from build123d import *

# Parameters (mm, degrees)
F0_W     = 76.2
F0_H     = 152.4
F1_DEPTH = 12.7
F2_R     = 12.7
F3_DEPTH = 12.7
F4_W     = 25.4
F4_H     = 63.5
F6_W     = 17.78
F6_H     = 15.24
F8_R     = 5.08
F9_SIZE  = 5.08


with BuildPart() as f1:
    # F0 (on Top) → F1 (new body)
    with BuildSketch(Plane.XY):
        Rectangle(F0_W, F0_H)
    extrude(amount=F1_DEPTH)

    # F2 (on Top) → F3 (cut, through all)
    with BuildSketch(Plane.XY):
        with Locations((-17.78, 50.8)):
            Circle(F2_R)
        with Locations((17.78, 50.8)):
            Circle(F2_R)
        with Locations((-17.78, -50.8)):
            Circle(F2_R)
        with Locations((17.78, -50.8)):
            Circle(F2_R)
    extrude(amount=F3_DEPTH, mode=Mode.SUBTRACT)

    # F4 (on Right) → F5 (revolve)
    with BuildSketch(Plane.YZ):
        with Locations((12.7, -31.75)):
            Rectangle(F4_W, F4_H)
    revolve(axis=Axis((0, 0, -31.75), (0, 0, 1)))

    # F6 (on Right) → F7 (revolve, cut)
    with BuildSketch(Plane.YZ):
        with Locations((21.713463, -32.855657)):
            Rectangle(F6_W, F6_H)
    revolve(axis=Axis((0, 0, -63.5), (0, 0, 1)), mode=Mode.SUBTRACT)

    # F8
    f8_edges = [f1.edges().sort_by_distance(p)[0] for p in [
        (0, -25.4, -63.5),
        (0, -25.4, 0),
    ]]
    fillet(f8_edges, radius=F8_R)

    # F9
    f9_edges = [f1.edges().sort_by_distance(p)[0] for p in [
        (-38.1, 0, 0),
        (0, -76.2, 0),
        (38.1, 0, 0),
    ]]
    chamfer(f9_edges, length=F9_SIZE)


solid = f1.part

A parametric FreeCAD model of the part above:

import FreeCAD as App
import Part
import Sketcher
Q = App.Units.Quantity


def edges_at(feature, points):
    """Names of the edges that pass closest to the given points."""
    edges = feature.Shape.Edges
    near = lambda p: min(range(len(edges)), key=lambda i: edges[i].distToShape(Part.Vertex(*p))[0])
    return sorted({f"Edge{near(p) + 1}" for p in points})

doc = App.newDocument("Part")
body = doc.addObject("PartDesign::Body", "Body")

sketch1 = body.newObject("Sketcher::SketchObject", "Sketch")
sketch1.AttachmentSupport = (doc.getObject("XY_Plane"), [""])
sketch1.MapMode = "FlatFace"
sketch1.addGeometry([
    Part.LineSegment(App.Vector(-38, 76, 0), App.Vector(-38, -76, 0)),
    Part.LineSegment(App.Vector(-38, -76, 0), App.Vector(38, -76, 0)),
    Part.LineSegment(App.Vector(38, -76, 0), App.Vector(38, 76, 0)),
    Part.LineSegment(App.Vector(38, 76, 0), App.Vector(-38, 76, 0)),
], False)
sketch1.addConstraint([
    Sketcher.Constraint("Coincident", 0, 2, 1, 1),
    Sketcher.Constraint("Coincident", 1, 2, 2, 1),
    Sketcher.Constraint("Coincident", 2, 2, 3, 1),
    Sketcher.Constraint("Coincident", 3, 2, 0, 1),
    Sketcher.Constraint("Vertical", 0),
    Sketcher.Constraint("Horizontal", 1),
    Sketcher.Constraint("Vertical", 2),
    Sketcher.Constraint("Horizontal", 3),
    Sketcher.Constraint("Symmetric", 0, 2, 2, 2, -1, 1),
    Sketcher.Constraint("DistanceX", 1, 1, 1, 2, Q("3 in")),
    Sketcher.Constraint("DistanceY", 0, 2, 0, 1, Q("6 in")),
])
pad1 = body.newObject("PartDesign::Pad", "Pad")
pad1.Profile = sketch1
pad1.Length = Q("0.5 in")

sketch2 = body.newObject("Sketcher::SketchObject", "Sketch001")
sketch2.AttachmentSupport = (doc.getObject("XY_Plane"), [""])
sketch2.MapMode = "FlatFace"
sketch2.addGeometry([
    Part.Circle(App.Vector(-18, 51, 0), App.Vector(0, 0, 1), 13),
    Part.Circle(App.Vector(18, 51, 0), App.Vector(0, 0, 1), 13),
    Part.Circle(App.Vector(-18, -51, 0), App.Vector(0, 0, 1), 13),
    Part.Circle(App.Vector(18, -51, 0), App.Vector(0, 0, 1), 13),
], False)
sketch2.addConstraint([
    Sketcher.Constraint("Equal", 0, 1),
    Sketcher.Constraint("Equal", 1, 2),
    Sketcher.Constraint("Equal", 2, 3),
    Sketcher.Constraint("Symmetric", 1, 3, 2, 3, -1, 1),
    Sketcher.Constraint("Symmetric", 0, 3, 3, 3, -1, 1),
    Sketcher.Constraint("Symmetric", 0, 3, 1, 3, -2),
    Sketcher.Constraint("Diameter", 0, Q("1 in")),
    Sketcher.Constraint("DistanceY", -1, 1, 0, 3, Q("2 in")),
    Sketcher.Constraint("DistanceX", 0, 3, -1, 1, Q("0.7 in")),
])
pocket1 = body.newObject("PartDesign::Pocket", "Pocket")
pocket1.Profile = sketch2
pocket1.Type = "ThroughAll"
pocket1.Reversed = True

sketch3 = body.newObject("Sketcher::SketchObject", "Sketch002")
sketch3.AttachmentSupport = (doc.getObject("YZ_Plane"), [""])
sketch3.MapMode = "FlatFace"
sketch3.addGeometry([
    Part.LineSegment(App.Vector(0, 0, 0), App.Vector(0, -64, 0)),
    Part.LineSegment(App.Vector(0, -64, 0), App.Vector(25, -64, 0)),
    Part.LineSegment(App.Vector(25, -64, 0), App.Vector(25, 0, 0)),
    Part.LineSegment(App.Vector(25, 0, 0), App.Vector(0, 0, 0)),
], False)
sketch3.addConstraint([
    Sketcher.Constraint("Coincident", 0, 2, 1, 1),
    Sketcher.Constraint("Coincident", 1, 2, 2, 1),
    Sketcher.Constraint("Coincident", 2, 2, 3, 1),
    Sketcher.Constraint("Coincident", 3, 2, 0, 1),
    Sketcher.Constraint("Vertical", 0),
    Sketcher.Constraint("Horizontal", 1),
    Sketcher.Constraint("Vertical", 2),
    Sketcher.Constraint("Horizontal", 3),
    Sketcher.Constraint("Coincident", 3, 2, -1, 1),
    Sketcher.Constraint("DistanceX", 1, 1, 1, 2, Q("1 in")),
    Sketcher.Constraint("DistanceY", 0, 2, 0, 1, Q("2.5 in")),
])
revolution = body.newObject("PartDesign::Revolution", "Revolution")
revolution.Profile = sketch3
revolution.ReferenceAxis = (sketch3, ["V_Axis"])
revolution.Angle = 360

sketch4 = body.newObject("Sketcher::SketchObject", "Sketch003")
sketch4.AttachmentSupport = (doc.getObject("YZ_Plane"), [""])
sketch4.MapMode = "FlatFace"
sketch4.addGeometry([
    Part.LineSegment(App.Vector(13, -25, 0), App.Vector(13, -40, 0)),
    Part.LineSegment(App.Vector(13, -40, 0), App.Vector(31, -40, 0)),
    Part.LineSegment(App.Vector(31, -40, 0), App.Vector(31, -25, 0)),
    Part.LineSegment(App.Vector(31, -25, 0), App.Vector(13, -25, 0)),
], False)
sketch4.addConstraint([
    Sketcher.Constraint("Coincident", 0, 2, 1, 1),
    Sketcher.Constraint("Coincident", 1, 2, 2, 1),
    Sketcher.Constraint("Coincident", 2, 2, 3, 1),
    Sketcher.Constraint("Coincident", 3, 2, 0, 1),
    Sketcher.Constraint("Vertical", 0),
    Sketcher.Constraint("Horizontal", 1),
    Sketcher.Constraint("Vertical", 2),
    Sketcher.Constraint("Horizontal", 3),
    Sketcher.Constraint("DistanceX", 1, 1, 1, 2, Q("0.7 in")),
    Sketcher.Constraint("DistanceY", 0, 2, 0, 1, Q("0.6 in")),
    Sketcher.Constraint("DistanceX", -1, 1, 0, 2, Q("12.823463 mm")),
    Sketcher.Constraint("DistanceY", 0, 2, -1, 1, Q("40.475657 mm")),
])
groove = body.newObject("PartDesign::Groove", "Groove")
groove.Profile = sketch4
groove.ReferenceAxis = (sketch4, ["V_Axis"])
groove.Angle = 360
doc.recompute()

fillet = body.newObject("PartDesign::Fillet", "Fillet")
fillet.Base = (groove, edges_at(groove, [(0, -25.4, -63.5), (0, -25.4, 0)]))
fillet.Radius = Q("0.2 in")
doc.recompute()

chamfer = body.newObject("PartDesign::Chamfer", "Chamfer")
chamfer.Base = (fillet, edges_at(fillet, [(-38.1, 0, 0), (0, -76.2, 0), (38.1, 0, 0)]))
chamfer.Size = Q("0.2 in")

doc.recompute()
